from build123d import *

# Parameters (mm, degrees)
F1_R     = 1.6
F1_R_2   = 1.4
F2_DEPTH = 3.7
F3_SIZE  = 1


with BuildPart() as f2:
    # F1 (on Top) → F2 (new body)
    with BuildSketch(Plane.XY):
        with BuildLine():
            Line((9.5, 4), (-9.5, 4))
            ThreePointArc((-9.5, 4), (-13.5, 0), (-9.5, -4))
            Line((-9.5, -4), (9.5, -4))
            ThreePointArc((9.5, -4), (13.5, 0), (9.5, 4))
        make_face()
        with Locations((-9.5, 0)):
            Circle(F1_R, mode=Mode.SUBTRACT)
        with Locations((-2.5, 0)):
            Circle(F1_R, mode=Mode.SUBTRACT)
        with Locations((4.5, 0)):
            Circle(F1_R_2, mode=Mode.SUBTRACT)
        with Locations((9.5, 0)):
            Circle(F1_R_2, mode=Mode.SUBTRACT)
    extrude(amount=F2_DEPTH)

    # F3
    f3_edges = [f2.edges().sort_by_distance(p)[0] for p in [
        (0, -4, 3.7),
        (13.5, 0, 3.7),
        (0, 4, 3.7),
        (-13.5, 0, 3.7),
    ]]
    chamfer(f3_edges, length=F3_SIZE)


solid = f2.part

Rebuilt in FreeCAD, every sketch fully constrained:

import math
import FreeCAD as App
import Part
import Sketcher

V = App.Vector
Q = App.Units.Quantity


def edges_at(feature, points):
    """Names of the edges that pass closest to the given points."""
    edges = feature.Shape.Edges
    near = lambda p: min(range(len(edges)), key=lambda i: edges[i].distToShape(Part.Vertex(*p))[0])
    return sorted({f"Edge{near(p) + 1}" for p in points})

doc = App.newDocument("Part")
params = doc.addObject("Spreadsheet::Sheet", "Params")
for row, (alias, value) in enumerate([
    ("sketch1_radius", "4 mm"),
    ("sketch1_diameter", "3.2 mm"),
    ("sketch1_diameter2", "2.8 mm"),
    ("sketch1_width", "19 mm"),
    ("pad1_length", "3.7 mm"),
    ("chamfer_size", "1 mm"),
], start=1):
    params.set(f"A{row}", alias)
    params.set(f"B{row}", "=" + value)
    params.setAlias(f"B{row}", alias)

body = doc.addObject("PartDesign::Body", "Body")

sketch1 = doc.addObject("Sketcher::SketchObject", "Sketch")
body.addObject(sketch1)
sketch1.AttachmentSupport = (doc.XY_Plane, [""])
sketch1.MapMode = "FlatFace"
sketch1.addGeometry([
    Part.LineSegment(V(9.5, 4, 0), V(-9.5, 4, 0)),
    Part.ArcOfCircle(Part.Circle(V(-9.5, 0, 0), V(0, 0, 1), 4), math.radians(90), math.radians(270)),
    Part.LineSegment(V(-9.5, -4, 0), V(9.5, -4, 0)),
    Part.ArcOfCircle(Part.Circle(V(9.5, 0, 0), V(0, 0, 1), 4), math.radians(-90), math.radians(90)),
    Part.Circle(V(-9.5, 0, 0), V(0, 0, 1), 1.6),
    Part.Circle(V(-2.5, 0, 0), V(0, 0, 1), 1.6),
    Part.Circle(V(4.5, 0, 0), V(0, 0, 1), 1.4),
    Part.Circle(V(9.5, 0, 0), V(0, 0, 1), 1.4),
], False)
sketch1.addConstraint([
    Sketcher.Constraint("Tangent", 0, 2, 1, 1),
    Sketcher.Constraint("Tangent", 1, 2, 2, 1),
    Sketcher.Constraint("Tangent", 2, 2, 3, 1),
    Sketcher.Constraint("Tangent", 3, 2, 0, 1),
    Sketcher.Constraint("Horizontal", 0),
    Sketcher.Constraint("Horizontal", 2),
    Sketcher.Constraint("Coincident", 4, 3, 1, 3),
    Sketcher.Constraint("Coincident", 7, 3, 3, 3),
    Sketcher.Constraint("Equal", 4, 5),
    Sketcher.Constraint("Equal", 6, 7),
    Sketcher.Constraint("Symmetric", 1, 3, 3, 3, -1, 1),
    Sketcher.Constraint("PointOnObject", 5, 3, -1),
    Sketcher.Constraint("PointOnObject", 6, 3, -1),
    Sketcher.Constraint("Radius", 1, Q("4 mm")),
    Sketcher.Constraint("Diameter", 4, Q("3.2 mm")),
    Sketcher.Constraint("Diameter", 6, Q("2.8 mm")),
    Sketcher.Constraint("DistanceX", 0, 2, 0, 1, Q("19 mm")),
    Sketcher.Constraint("DistanceX", 1, 3, 5, 3, Q("7 mm")),
    Sketcher.Constraint("DistanceX", 6, 3, 3, 3, Q("5 mm")),
])
sketch1.setExpression("Constraints[13]", "Params.sketch1_radius")
sketch1.setExpression("Constraints[14]", "Params.sketch1_diameter")
sketch1.setExpression("Constraints[15]", "Params.sketch1_diameter2")
sketch1.setExpression("Constraints[16]", "Params.sketch1_width")
pad1 = doc.addObject("PartDesign::Pad", "Pad")
body.addObject(pad1)
pad1.Profile = sketch1
pad1.setExpression("Length", "Params.pad1_length")
doc.recompute()

chamfer = doc.addObject("PartDesign::Chamfer", "Chamfer")
body.addObject(chamfer)
chamfer.Base = (pad1, edges_at(pad1, [
    (0, -4, 3.7),
    (13.5, 0, 3.7),
    (0, 4, 3.7),
    (-13.5, 0, 3.7),
]))
chamfer.setExpression("Size", "Params.chamfer_size")

doc.recompute()
